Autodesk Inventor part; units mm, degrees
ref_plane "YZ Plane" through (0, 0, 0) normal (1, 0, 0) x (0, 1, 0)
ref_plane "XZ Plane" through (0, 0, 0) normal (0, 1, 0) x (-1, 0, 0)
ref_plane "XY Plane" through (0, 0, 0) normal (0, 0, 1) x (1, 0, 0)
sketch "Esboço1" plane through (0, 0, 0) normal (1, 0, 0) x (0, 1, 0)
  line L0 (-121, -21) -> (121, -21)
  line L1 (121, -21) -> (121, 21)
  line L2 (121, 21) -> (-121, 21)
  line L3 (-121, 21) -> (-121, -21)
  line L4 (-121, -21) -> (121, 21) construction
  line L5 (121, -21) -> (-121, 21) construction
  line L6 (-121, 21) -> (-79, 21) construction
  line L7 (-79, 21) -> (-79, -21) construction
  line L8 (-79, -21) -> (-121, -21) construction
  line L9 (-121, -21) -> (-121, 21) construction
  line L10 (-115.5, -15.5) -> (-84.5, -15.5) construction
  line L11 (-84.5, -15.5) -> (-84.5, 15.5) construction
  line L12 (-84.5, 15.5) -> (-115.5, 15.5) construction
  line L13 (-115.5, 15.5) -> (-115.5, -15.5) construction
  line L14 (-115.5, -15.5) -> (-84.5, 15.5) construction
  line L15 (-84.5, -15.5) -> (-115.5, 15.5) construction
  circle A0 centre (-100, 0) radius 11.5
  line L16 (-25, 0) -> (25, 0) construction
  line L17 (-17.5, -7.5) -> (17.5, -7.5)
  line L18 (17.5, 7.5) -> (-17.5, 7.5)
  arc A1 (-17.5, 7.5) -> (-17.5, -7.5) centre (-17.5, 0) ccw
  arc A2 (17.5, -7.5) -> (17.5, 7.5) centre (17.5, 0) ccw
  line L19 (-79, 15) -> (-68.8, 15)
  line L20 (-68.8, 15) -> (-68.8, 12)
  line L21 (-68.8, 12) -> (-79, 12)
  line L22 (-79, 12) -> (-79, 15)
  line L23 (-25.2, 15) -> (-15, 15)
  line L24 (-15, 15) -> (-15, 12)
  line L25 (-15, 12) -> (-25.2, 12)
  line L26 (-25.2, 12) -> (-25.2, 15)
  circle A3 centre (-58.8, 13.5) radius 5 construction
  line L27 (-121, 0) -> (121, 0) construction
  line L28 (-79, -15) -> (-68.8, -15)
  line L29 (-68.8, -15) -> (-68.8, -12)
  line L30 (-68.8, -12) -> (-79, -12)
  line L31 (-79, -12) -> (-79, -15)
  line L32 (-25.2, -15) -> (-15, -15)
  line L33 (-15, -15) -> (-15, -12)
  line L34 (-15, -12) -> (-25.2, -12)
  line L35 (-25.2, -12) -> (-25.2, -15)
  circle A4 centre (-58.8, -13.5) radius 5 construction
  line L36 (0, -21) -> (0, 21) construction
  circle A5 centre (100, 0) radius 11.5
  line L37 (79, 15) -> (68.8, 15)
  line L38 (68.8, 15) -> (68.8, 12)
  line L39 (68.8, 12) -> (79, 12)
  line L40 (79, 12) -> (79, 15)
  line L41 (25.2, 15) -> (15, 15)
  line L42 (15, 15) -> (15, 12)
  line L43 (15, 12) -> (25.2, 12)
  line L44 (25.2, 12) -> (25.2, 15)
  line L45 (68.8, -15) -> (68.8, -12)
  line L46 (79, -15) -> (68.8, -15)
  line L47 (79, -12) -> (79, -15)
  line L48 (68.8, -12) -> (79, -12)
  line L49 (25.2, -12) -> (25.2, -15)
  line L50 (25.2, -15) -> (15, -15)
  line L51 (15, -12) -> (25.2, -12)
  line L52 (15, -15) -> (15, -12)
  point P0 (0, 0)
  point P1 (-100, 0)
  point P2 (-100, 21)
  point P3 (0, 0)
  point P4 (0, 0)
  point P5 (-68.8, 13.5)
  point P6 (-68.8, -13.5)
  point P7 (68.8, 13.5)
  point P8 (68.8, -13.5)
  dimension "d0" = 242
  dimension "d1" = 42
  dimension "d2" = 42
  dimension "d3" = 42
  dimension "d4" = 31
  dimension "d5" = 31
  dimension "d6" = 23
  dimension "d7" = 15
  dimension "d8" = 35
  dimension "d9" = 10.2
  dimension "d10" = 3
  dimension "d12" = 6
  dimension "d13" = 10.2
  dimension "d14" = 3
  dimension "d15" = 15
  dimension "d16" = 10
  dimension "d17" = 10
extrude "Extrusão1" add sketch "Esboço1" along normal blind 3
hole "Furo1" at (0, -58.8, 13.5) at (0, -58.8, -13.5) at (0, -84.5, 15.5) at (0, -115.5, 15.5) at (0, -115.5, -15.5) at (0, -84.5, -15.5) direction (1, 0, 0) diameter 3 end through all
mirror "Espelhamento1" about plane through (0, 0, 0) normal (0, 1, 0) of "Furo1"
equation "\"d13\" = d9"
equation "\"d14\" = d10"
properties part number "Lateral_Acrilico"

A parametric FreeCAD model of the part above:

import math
import FreeCAD as App
import Part
import Sketcher
from FreeCAD import Vector
Q = App.Units.Quantity


def add_polygon(sketch, points):
    """Adds a closed chain of lines whose ends are joined by coincident constraints."""
    first, n = sketch.GeometryCount, len(points)
    for a, b in zip(points, points[1:] + points[:1]):
        sketch.addGeometry(Part.LineSegment(App.Vector(*a, 0), App.Vector(*b, 0)), False)
    for i in range(n):
        sketch.addConstraint(Sketcher.Constraint("Coincident", first + i, 2, first + (i + 1) % n, 1))

doc = App.newDocument("Part")
body = doc.addObject("PartDesign::Body", "Body")

# Sketch on YZ plane
sketch1 = body.newObject("Sketcher::SketchObject", "Sketch")
sketch1.AttachmentSupport = (doc.getObject("YZ_Plane"), [""])
sketch1.MapMode = "FlatFace"
add_polygon(sketch1, [(-121, 21), (-121, -21), (121, -21), (121, 21)])  # lines 0-3
add_polygon(sketch1, [(-68.8, -15), (-79, -15), (-79, -12), (-68.8, -12)])  # lines 4-7
add_polygon(sketch1, [(-15, -15), (-25.2, -15), (-25.2, -12), (-15, -12)])  # lines 8-11
add_polygon(sketch1, [(15, -12), (25.2, -12), (25.2, -15), (15, -15)])  # lines 12-15
add_polygon(sketch1, [(79, -15), (68.8, -15), (68.8, -12), (79, -12)])  # lines 16-19
sketch1.addGeometry(Part.Circle(Vector(-100, 0, 0), Vector(0, 0, 1), 11.5), False)  # 20
add_polygon(sketch1, [(-79, 12), (-79, 15), (-68.8, 15), (-68.8, 12)])  # lines 21-24
add_polygon(sketch1, [(-25.2, 12), (-25.2, 15), (-15, 15), (-15, 12)])  # lines 25-28
sketch1.addGeometry(Part.LineSegment(Vector(17.5, -7.5, 0), Vector(-17.5, -7.5, 0)), False)  # 29
sketch1.addGeometry(Part.ArcOfCircle(Part.Circle(Vector(-17.5, 0, 0), Vector(0, 0, 1), 7.5), math.radians(90), math.radians(270)), False)  # 30
sketch1.addGeometry(Part.LineSegment(Vector(-17.5, 7.5, 0), Vector(17.5, 7.5, 0)), False)  # 31
sketch1.addGeometry(Part.ArcOfCircle(Part.Circle(Vector(17.5, 0, 0), Vector(0, 0, 1), 7.5), math.radians(-90), math.radians(90)), False)  # 32
sketch1.addGeometry(Part.Circle(Vector(100, 0, 0), Vector(0, 0, 1), 11.5), False)  # 33
add_polygon(sketch1, [(15, 15), (25.2, 15), (25.2, 12), (15, 12)])  # lines 34-37
add_polygon(sketch1, [(68.8, 15), (79, 15), (79, 12), (68.8, 12)])  # lines 38-41
sketch1.addConstraint([
    Sketcher.Constraint("Tangent", 29, 2, 30, 2),
    Sketcher.Constraint("Tangent", 30, 1, 31, 1),
    Sketcher.Constraint("Tangent", 31, 2, 32, 2),
    Sketcher.Constraint("Tangent", 32, 1, 29, 1),
    Sketcher.Constraint("Vertical", 0),
    Sketcher.Constraint("Horizontal", 1),
    Sketcher.Constraint("Vertical", 2),
    Sketcher.Constraint("Horizontal", 3),
    Sketcher.Constraint("Horizontal", 4),
    Sketcher.Constraint("Vertical", 5),
    Sketcher.Constraint("Horizontal", 6),
    Sketcher.Constraint("Vertical", 7),
    Sketcher.Constraint("Horizontal", 8),
    Sketcher.Constraint("Vertical", 9),
    Sketcher.Constraint("Horizontal", 10),
    Sketcher.Constraint("Vertical", 11),
    Sketcher.Constraint("Horizontal", 12),
    Sketcher.Constraint("Vertical", 13),
    Sketcher.Constraint("Horizontal", 14),
    Sketcher.Constraint("Vertical", 15),
    Sketcher.Constraint("Horizontal", 16),
    Sketcher.Constraint("Vertical", 17),
    Sketcher.Constraint("Horizontal", 18),
    Sketcher.Constraint("Vertical", 19),
    Sketcher.Constraint("Vertical", 21),
    Sketcher.Constraint("Horizontal", 22),
    Sketcher.Constraint("Vertical", 23),
    Sketcher.Constraint("Horizontal", 24),
    Sketcher.Constraint("Vertical", 25),
    Sketcher.Constraint("Horizontal", 26),
    Sketcher.Constraint("Vertical", 27),
    Sketcher.Constraint("Horizontal", 28),
    Sketcher.Constraint("Horizontal", 29),
    Sketcher.Constraint("Horizontal", 31),
    Sketcher.Constraint("Horizontal", 34),
    Sketcher.Constraint("Vertical", 35),
    Sketcher.Constraint("Horizontal", 36),
    Sketcher.Constraint("Vertical", 37),
    Sketcher.Constraint("Horizontal", 38),
    Sketcher.Constraint("Vertical", 39),
    Sketcher.Constraint("Horizontal", 40),
    Sketcher.Constraint("Vertical", 41),
    Sketcher.Constraint("Equal", 20, 33),
    Sketcher.Constraint("Symmetric", 30, 3, 32, 3, -1, 1),
    Sketcher.Constraint("Symmetric", 20, 3, 33, 3, -1, 1),
    Sketcher.Constraint("Symmetric", 0, 2, 2, 2, -1, 1),
    Sketcher.Constraint("Symmetric", 19, 2, 21, 2, -1, 1),
    Sketcher.Constraint("Symmetric", 17, 2, 23, 2, -1, 1),
    Sketcher.Constraint("Symmetric", 13, 2, 25, 2, -1, 1),
    Sketcher.Constraint("Symmetric", 15, 2, 27, 2, -1, 1),
    Sketcher.Constraint("Symmetric", 8, 2, 34, 2, -1, 1),
    Sketcher.Constraint("Symmetric", 10, 2, 36, 2, -1, 1),
    Sketcher.Constraint("Symmetric", 4, 2, 38, 2, -1, 1),
    Sketcher.Constraint("Symmetric", 6, 2, 40, 2, -1, 1),
    Sketcher.Constraint("Symmetric", 9, 2, 12, 2, -2),
    Sketcher.Constraint("Symmetric", 11, 2, 14, 2, -2),
    Sketcher.Constraint("Symmetric", 7, 2, 16, 2, -2),
    Sketcher.Constraint("Symmetric", 5, 2, 18, 2, -2),
    Sketcher.Constraint("PointOnObject", 20, 3, -1),
    Sketcher.Constraint("Horizontal", 7, 2, 8, 2),
    Sketcher.Constraint("Horizontal", 6, 2, 9, 2),
    Sketcher.Constraint("Equal", 6, 8),
    Sketcher.Constraint("Diameter", 20, Q("23 mm")),
    Sketcher.Constraint("Radius", 30, Q("7.5 mm")),
    Sketcher.Constraint("DistanceX", 1, 1, 1, 2, Q("242 mm")),
    Sketcher.Constraint("DistanceX", 29, 2, 29, 1, Q("35 mm")),
    Sketcher.Constraint("DistanceY", 0, 2, 0, 1, Q("42 mm")),
    Sketcher.Constraint("DistanceY", 5, 1, 5, 2, Q("3 mm")),
    Sketcher.Constraint("DistanceX", 4, 2, 4, 1, Q("10.2 mm")),
    Sketcher.Constraint("DistanceY", 4, 2, -1, 1, Q("15 mm")),
    Sketcher.Constraint("DistanceX", 10, 2, -1, 1, Q("15 mm")),
    Sketcher.Constraint("DistanceX", 0, 2, 4, 2, Q("42 mm")),
    Sketcher.Constraint("DistanceX", 20, 3, -1, 1, Q("100 mm")),
])
pad1 = body.newObject("PartDesign::Pad", "Pad")
pad1.Profile = sketch1
pad1.Length = 3

# Sketch on YZ plane
sketch2 = body.newObject("Sketcher::SketchObject", "Sketch001")
sketch2.AttachmentSupport = (doc.getObject("YZ_Plane"), [""])
sketch2.MapMode = "FlatFace"
sketch2.addGeometry([
    Part.Circle(Vector(-58.8, 13.5, 0), Vector(0, 0, 1), 1.5),  # 0
    Part.Circle(Vector(-58.8, -13.5, 0), Vector(0, 0, 1), 1.5),  # 1
    Part.Circle(Vector(-84.5, 15.5, 0), Vector(0, 0, 1), 1.5),  # 2
    Part.Circle(Vector(-115.5, 15.5, 0), Vector(0, 0, 1), 1.5),  # 3
    Part.Circle(Vector(-115.5, -15.5, 0), Vector(0, 0, 1), 1.5),  # 4
    Part.Circle(Vector(-84.5, -15.5, 0), Vector(0, 0, 1), 1.5),  # 5
], False)
sketch2.addConstraint([
    Sketcher.Constraint("Equal", 0, 1),
    Sketcher.Constraint("Equal", 1, 2),
    Sketcher.Constraint("Equal", 2, 3),
    Sketcher.Constraint("Equal", 3, 4),
    Sketcher.Constraint("Equal", 4, 5),
    Sketcher.Constraint("Symmetric", 0, 3, 1, 3, -1),
    Sketcher.Constraint("Symmetric", 3, 3, 4, 3, -1),
    Sketcher.Constraint("Symmetric", 2, 3, 5, 3, -1),
    Sketcher.Constraint("Horizontal", 2, 3, 3, 3),
    Sketcher.Constraint("Diameter", 0, Q("3 mm")),
    Sketcher.Constraint("DistanceY", 1, 3, 0, 3, Q("27 mm")),
    Sketcher.Constraint("DistanceY", 0, 3, 2, 3, Q("2 mm")),
    Sketcher.Constraint("DistanceX", 3, 3, 2, 3, Q("31 mm")),
    Sketcher.Constraint("DistanceX", 0, 3, -1, 1, Q("58.8 mm")),
    Sketcher.Constraint("DistanceX", 2, 3, -1, 1, Q("84.5 mm")),
])
doc.recompute()
hole = body.newObject("PartDesign::Hole", "Hole")
hole.Profile = sketch2
hole.ThreadType = "None"
hole.Diameter = 3
hole.DepthType = "ThroughAll"
hole.Reversed = True
doc.recompute()

mirrored = body.newObject("PartDesign::Mirrored", "Mirrored")
mirrored.Originals = [hole]
mirrored.MirrorPlane = (doc.getObject("XZ_Plane"), [""])
body.Tip = mirrored

doc.recompute()
